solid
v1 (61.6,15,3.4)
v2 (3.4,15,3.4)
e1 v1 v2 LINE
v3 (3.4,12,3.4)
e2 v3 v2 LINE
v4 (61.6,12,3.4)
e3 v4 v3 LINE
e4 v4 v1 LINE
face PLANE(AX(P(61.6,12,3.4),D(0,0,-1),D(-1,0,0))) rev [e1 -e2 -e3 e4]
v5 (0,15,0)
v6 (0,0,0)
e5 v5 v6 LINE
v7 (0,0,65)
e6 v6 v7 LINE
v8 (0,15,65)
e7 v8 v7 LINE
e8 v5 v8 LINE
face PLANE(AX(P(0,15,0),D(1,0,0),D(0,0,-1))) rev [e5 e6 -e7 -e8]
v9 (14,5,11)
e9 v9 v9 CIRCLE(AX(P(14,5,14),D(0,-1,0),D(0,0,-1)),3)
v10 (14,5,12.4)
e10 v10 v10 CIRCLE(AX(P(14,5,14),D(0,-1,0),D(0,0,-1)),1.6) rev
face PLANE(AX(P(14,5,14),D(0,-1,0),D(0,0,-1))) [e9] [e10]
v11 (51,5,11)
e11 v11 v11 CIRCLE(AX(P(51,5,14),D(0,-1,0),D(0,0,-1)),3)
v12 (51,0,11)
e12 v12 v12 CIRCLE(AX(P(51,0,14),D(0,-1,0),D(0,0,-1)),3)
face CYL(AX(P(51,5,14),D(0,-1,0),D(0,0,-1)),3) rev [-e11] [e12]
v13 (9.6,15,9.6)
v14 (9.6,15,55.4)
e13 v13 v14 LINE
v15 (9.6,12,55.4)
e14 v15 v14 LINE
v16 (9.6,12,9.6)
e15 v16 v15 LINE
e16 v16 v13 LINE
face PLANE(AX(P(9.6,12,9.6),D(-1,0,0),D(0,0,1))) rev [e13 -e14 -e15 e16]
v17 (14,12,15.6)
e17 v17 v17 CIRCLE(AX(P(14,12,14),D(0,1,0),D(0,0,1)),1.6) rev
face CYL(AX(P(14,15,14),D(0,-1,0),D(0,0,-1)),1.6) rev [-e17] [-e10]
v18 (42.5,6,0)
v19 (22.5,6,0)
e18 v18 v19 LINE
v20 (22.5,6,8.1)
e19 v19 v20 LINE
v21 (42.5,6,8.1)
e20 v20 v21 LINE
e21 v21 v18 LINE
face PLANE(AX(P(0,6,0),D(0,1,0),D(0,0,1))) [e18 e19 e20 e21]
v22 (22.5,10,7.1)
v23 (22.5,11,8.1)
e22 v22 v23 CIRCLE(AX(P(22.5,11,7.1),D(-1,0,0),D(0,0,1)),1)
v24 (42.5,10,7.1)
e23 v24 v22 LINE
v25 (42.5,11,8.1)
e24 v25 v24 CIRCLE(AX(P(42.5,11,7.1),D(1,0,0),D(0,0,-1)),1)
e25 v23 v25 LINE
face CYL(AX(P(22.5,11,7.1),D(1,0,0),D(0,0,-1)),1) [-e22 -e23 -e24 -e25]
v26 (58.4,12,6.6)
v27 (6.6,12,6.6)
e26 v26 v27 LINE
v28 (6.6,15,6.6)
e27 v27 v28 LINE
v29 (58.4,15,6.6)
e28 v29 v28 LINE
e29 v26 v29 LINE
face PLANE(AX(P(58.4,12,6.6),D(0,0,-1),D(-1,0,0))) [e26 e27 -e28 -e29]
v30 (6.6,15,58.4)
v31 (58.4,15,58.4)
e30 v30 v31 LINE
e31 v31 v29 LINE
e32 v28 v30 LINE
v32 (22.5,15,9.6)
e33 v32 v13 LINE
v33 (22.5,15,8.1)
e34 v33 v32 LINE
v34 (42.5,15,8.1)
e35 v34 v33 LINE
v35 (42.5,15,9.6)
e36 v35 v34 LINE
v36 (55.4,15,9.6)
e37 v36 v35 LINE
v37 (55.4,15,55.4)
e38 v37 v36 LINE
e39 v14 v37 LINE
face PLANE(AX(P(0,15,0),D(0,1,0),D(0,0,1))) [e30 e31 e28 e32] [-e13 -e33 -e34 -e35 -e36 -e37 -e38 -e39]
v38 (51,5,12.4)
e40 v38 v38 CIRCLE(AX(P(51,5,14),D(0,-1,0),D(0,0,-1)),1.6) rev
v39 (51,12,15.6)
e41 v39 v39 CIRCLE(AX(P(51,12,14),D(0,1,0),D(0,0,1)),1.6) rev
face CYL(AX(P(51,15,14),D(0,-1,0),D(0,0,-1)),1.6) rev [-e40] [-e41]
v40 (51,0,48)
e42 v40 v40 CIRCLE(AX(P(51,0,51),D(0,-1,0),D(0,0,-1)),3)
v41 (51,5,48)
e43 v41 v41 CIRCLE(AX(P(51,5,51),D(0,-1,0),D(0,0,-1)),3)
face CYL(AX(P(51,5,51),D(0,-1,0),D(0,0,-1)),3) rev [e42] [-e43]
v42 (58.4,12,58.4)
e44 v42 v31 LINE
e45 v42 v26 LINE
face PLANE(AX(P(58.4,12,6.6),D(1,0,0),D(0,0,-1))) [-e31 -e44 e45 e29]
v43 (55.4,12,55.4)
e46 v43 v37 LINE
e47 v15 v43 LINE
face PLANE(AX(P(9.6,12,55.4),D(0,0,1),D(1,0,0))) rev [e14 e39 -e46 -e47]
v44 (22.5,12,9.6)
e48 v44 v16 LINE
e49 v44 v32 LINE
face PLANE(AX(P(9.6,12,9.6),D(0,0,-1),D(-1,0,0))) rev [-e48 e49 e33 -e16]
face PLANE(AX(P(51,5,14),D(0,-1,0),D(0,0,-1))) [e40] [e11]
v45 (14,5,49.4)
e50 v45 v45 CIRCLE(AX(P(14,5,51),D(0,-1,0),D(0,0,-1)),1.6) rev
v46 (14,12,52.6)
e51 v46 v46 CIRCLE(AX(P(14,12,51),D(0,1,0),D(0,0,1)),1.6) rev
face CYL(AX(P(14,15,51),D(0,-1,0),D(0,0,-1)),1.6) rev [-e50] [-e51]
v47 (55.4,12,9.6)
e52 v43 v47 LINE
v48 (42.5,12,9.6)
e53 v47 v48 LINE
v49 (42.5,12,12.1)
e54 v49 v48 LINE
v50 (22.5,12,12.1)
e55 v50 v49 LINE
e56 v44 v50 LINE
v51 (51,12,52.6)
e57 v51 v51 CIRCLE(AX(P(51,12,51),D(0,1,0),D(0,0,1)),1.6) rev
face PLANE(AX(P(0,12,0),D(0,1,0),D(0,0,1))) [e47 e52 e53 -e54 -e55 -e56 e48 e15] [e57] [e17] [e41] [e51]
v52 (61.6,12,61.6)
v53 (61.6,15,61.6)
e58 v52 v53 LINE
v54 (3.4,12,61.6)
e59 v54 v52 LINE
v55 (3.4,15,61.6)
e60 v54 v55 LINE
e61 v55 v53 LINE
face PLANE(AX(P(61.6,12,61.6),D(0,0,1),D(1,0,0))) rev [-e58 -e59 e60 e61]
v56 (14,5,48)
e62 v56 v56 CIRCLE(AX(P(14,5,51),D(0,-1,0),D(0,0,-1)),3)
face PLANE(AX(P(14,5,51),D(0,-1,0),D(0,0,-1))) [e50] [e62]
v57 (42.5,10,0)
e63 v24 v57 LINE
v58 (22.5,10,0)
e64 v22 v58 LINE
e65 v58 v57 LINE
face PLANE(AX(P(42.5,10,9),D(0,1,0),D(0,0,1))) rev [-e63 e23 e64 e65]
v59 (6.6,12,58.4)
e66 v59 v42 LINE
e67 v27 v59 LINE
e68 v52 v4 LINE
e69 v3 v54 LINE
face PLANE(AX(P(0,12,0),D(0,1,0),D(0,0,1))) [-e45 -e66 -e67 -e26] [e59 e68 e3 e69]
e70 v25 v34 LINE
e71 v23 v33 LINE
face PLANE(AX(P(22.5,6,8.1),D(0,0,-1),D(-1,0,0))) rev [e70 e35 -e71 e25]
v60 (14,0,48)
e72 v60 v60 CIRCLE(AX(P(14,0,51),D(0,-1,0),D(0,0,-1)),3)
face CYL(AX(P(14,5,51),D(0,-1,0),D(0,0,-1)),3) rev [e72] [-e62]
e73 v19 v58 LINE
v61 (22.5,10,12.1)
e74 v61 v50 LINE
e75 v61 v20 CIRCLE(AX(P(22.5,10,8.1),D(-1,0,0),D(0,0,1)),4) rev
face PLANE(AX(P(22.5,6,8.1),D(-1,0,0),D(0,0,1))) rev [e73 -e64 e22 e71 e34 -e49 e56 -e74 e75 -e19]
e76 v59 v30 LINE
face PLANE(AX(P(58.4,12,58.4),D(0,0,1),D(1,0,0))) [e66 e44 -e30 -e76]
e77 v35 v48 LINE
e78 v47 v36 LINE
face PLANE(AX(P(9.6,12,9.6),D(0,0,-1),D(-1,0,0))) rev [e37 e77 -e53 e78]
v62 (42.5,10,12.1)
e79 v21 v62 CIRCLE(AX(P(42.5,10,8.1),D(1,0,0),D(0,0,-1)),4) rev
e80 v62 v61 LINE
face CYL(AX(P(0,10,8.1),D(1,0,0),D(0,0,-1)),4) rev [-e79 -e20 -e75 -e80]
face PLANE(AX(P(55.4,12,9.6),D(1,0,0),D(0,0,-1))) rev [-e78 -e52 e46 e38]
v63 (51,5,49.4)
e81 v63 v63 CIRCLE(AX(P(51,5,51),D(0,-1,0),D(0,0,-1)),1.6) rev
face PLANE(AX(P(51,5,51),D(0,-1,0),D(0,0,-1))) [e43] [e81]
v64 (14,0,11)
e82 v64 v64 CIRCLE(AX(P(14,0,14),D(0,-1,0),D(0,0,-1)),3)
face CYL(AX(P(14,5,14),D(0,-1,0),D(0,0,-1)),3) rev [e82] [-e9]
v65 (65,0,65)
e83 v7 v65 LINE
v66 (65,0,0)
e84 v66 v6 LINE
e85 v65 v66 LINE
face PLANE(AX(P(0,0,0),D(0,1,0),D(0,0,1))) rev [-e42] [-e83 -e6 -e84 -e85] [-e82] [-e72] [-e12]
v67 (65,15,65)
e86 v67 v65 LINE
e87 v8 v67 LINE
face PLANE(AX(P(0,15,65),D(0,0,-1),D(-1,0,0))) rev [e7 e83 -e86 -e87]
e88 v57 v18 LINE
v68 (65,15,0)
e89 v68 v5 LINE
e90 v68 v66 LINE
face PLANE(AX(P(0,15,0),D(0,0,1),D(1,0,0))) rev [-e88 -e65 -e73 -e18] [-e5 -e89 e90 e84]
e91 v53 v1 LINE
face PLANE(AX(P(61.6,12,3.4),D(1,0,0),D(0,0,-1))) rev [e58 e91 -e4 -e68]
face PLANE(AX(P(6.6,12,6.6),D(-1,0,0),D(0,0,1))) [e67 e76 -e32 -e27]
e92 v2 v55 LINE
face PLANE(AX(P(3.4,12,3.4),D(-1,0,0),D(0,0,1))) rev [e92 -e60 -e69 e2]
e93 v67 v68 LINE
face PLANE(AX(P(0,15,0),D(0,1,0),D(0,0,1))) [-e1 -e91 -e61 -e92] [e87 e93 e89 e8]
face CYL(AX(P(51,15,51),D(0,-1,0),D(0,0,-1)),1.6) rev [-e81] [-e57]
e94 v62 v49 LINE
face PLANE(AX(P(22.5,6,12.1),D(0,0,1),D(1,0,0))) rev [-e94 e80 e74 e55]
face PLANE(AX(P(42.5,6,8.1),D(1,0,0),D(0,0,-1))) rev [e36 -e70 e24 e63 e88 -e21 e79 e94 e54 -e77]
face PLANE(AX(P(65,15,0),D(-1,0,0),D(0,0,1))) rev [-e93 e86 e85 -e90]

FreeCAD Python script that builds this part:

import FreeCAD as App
import Part
import Sketcher
from FreeCAD import Vector


def edges_at(feature, points):
    """Names of the edges that pass closest to the given points."""
    edges = feature.Shape.Edges
    near = lambda p: min(range(len(edges)), key=lambda i: edges[i].distToShape(Part.Vertex(*p))[0])
    return sorted({f"Edge{near(p) + 1}" for p in points})

doc = App.newDocument("Part")
body = doc.addObject("PartDesign::Body", "Body")

# Sketch on XZ plane
sketch1 = body.newObject("Sketcher::SketchObject", "Sketch")
sketch1.AttachmentSupport = (doc.getObject("XZ_Plane"), [""])
sketch1.MapMode = "FlatFace"
sketch1.addGeometry([
    Part.LineSegment(Vector(0, 0, 0), Vector(0, 65, 0)),
    Part.LineSegment(Vector(0, 65, 0), Vector(65, 65, 0)),
    Part.LineSegment(Vector(65, 65, 0), Vector(65, 0, 0)),
    Part.LineSegment(Vector(65, 0, 0), Vector(0, 0, 0)),
], False)
sketch1.addConstraint([
    Sketcher.Constraint("Coincident", 0, 2, 1, 1),
    Sketcher.Constraint("Coincident", 1, 2, 2, 1),
    Sketcher.Constraint("Coincident", 2, 2, 3, 1),
    Sketcher.Constraint("Coincident", 3, 2, 0, 1),
    Sketcher.Constraint("Vertical", 0),
    Sketcher.Constraint("Horizontal", 1),
    Sketcher.Constraint("Vertical", 2),
    Sketcher.Constraint("Horizontal", 3),
    Sketcher.Constraint("Coincident", 3, 2, -1, 1),
    Sketcher.Constraint("Equal", 3, 0),
    Sketcher.Constraint("DistanceX", 1, 1, 1, 2, 65.0),
])
pad1 = body.newObject("PartDesign::Pad", "Pad")
pad1.Profile = sketch1
pad1.Length = 15
pad1.Reversed = True

# Sketch on XZ plane
sketch2 = body.newObject("Sketcher::SketchObject", "Sketch001")
sketch2.AttachmentSupport = (doc.getObject("XZ_Plane"), [""])
sketch2.MapMode = "FlatFace"
sketch2.addGeometry([
    Part.Circle(Vector(14, 51, 0), Vector(0, 0, 1), 1.6),
    Part.Circle(Vector(51, 51, 0), Vector(0, 0, 1), 1.6),
    Part.Circle(Vector(14, 14, 0), Vector(0, 0, 1), 1.6),
    Part.Circle(Vector(51, 14, 0), Vector(0, 0, 1), 1.6),
], False)
sketch2.addConstraint([
    Sketcher.Constraint("Equal", 0, 1),
    Sketcher.Constraint("Equal", 1, 2),
    Sketcher.Constraint("Equal", 2, 3),
    Sketcher.Constraint("Horizontal", 0, 3, 1, 3),
    Sketcher.Constraint("Horizontal", 2, 3, 3, 3),
    Sketcher.Constraint("Vertical", 0, 3, 2, 3),
    Sketcher.Constraint("Vertical", 1, 3, 3, 3),
    Sketcher.Constraint("Diameter", 0, 3.2),
    Sketcher.Constraint("DistanceX", -1, 1, 0, 3, 14.0),
    Sketcher.Constraint("DistanceY", -1, 1, 0, 3, 51.0),
    Sketcher.Constraint("DistanceX", -1, 1, 1, 3, 51.0),
    Sketcher.Constraint("DistanceY", -1, 1, 2, 3, 14.0),
])
pocket1 = body.newObject("PartDesign::Pocket", "Pocket")
pocket1.Profile = sketch2
pocket1.Type = "ThroughAll"

# Sketch on XZ plane
sketch3 = body.newObject("Sketcher::SketchObject", "Sketch002")
sketch3.AttachmentSupport = (doc.getObject("XZ_Plane"), [""])
sketch3.MapMode = "FlatFace"
sketch3.AttachmentOffset = App.Placement(Vector(0, 0, -15), App.Rotation())
sketch3.addGeometry([
    Part.LineSegment(Vector(9.6, 9.6, 0), Vector(9.6, 55.4, 0)),
    Part.LineSegment(Vector(9.6, 55.4, 0), Vector(55.4, 55.4, 0)),
    Part.LineSegment(Vector(55.4, 55.4, 0), Vector(55.4, 9.6, 0)),
    Part.LineSegment(Vector(55.4, 9.6, 0), Vector(9.6, 9.6, 0)),
], False)
sketch3.addConstraint([
    Sketcher.Constraint("Coincident", 0, 2, 1, 1),
    Sketcher.Constraint("Coincident", 1, 2, 2, 1),
    Sketcher.Constraint("Coincident", 2, 2, 3, 1),
    Sketcher.Constraint("Coincident", 3, 2, 0, 1),
    Sketcher.Constraint("Vertical", 0),
    Sketcher.Constraint("Horizontal", 1),
    Sketcher.Constraint("Vertical", 2),
    Sketcher.Constraint("Horizontal", 3),
    Sketcher.Constraint("Equal", 3, 0),
    Sketcher.Constraint("DistanceX", 1, 1, 1, 2, 45.8),
    Sketcher.Constraint("DistanceX", -1, 1, 0, 2, 9.6),
    Sketcher.Constraint("DistanceY", -1, 1, 0, 2, 55.4),
])
pocket2 = body.newObject("PartDesign::Pocket", "Pocket001")
pocket2.Profile = sketch3
pocket2.Length = 3
pocket2.Reversed = True

# Sketch on XZ plane
sketch4 = body.newObject("Sketcher::SketchObject", "Sketch003")
sketch4.AttachmentSupport = (doc.getObject("XZ_Plane"), [""])
sketch4.MapMode = "FlatFace"
sketch4.AttachmentOffset = App.Placement(Vector(0, 0, -15), App.Rotation())
sketch4.addGeometry([
    Part.LineSegment(Vector(3.4, 3.4, 0), Vector(3.4, 61.6, 0)),  # 0
    Part.LineSegment(Vector(3.4, 61.6, 0), Vector(61.6, 61.6, 0)),  # 1
    Part.LineSegment(Vector(61.6, 61.6, 0), Vector(61.6, 3.4, 0)),  # 2
    Part.LineSegment(Vector(61.6, 3.4, 0), Vector(3.4, 3.4, 0)),  # 3
    Part.LineSegment(Vector(58.4, 58.4, 0), Vector(6.6, 58.4, 0)),  # 4
    Part.LineSegment(Vector(6.6, 58.4, 0), Vector(6.6, 6.6, 0)),  # 5
    Part.LineSegment(Vector(6.6, 6.6, 0), Vector(58.4, 6.6, 0)),  # 6
    Part.LineSegment(Vector(58.4, 6.6, 0), Vector(58.4, 58.4, 0)),  # 7
], False)
sketch4.addConstraint([
    Sketcher.Constraint("Coincident", 0, 2, 1, 1),
    Sketcher.Constraint("Coincident", 1, 2, 2, 1),
    Sketcher.Constraint("Coincident", 2, 2, 3, 1),
    Sketcher.Constraint("Coincident", 3, 2, 0, 1),
    Sketcher.Constraint("Coincident", 4, 2, 5, 1),
    Sketcher.Constraint("Coincident", 5, 2, 6, 1),
    Sketcher.Constraint("Coincident", 6, 2, 7, 1),
    Sketcher.Constraint("Coincident", 7, 2, 4, 1),
    Sketcher.Constraint("Vertical", 0),
    Sketcher.Constraint("Horizontal", 1),
    Sketcher.Constraint("Vertical", 2),
    Sketcher.Constraint("Horizontal", 3),
    Sketcher.Constraint("Horizontal", 4),
    Sketcher.Constraint("Vertical", 5),
    Sketcher.Constraint("Horizontal", 6),
    Sketcher.Constraint("Vertical", 7),
    Sketcher.Constraint("Equal", 3, 0),
    Sketcher.Constraint("Equal", 6, 5),
    Sketcher.Constraint("DistanceX", 1, 1, 1, 2, 58.2),
    Sketcher.Constraint("DistanceX", 4, 2, 4, 1, 51.8),
    Sketcher.Constraint("DistanceX", 4, 2, 1, 2, 55.0),
    Sketcher.Constraint("DistanceY", 3, 2, 4, 2, 55.0),
    Sketcher.Constraint("DistanceX", -1, 1, 0, 2, 3.4),
    Sketcher.Constraint("DistanceY", -1, 1, 0, 2, 61.6),
])
pocket3 = body.newObject("PartDesign::Pocket", "Pocket002")
pocket3.Profile = sketch4
pocket3.Length = 3
pocket3.Reversed = True

# Sketch on XZ plane
sketch5 = body.newObject("Sketcher::SketchObject", "Sketch004")
sketch5.AttachmentSupport = (doc.getObject("XZ_Plane"), [""])
sketch5.MapMode = "FlatFace"
sketch5.addGeometry([
    Part.Circle(Vector(14, 14, 0), Vector(0, 0, 1), 3),
    Part.Circle(Vector(14, 51, 0), Vector(0, 0, 1), 3),
    Part.Circle(Vector(51, 14, 0), Vector(0, 0, 1), 3),
    Part.Circle(Vector(51, 51, 0), Vector(0, 0, 1), 3),
], False)
sketch5.addConstraint([
    Sketcher.Constraint("Equal", 0, 1),
    Sketcher.Constraint("Equal", 1, 2),
    Sketcher.Constraint("Equal", 2, 3),
    Sketcher.Constraint("Horizontal", 0, 3, 2, 3),
    Sketcher.Constraint("Horizontal", 1, 3, 3, 3),
    Sketcher.Constraint("Vertical", 0, 3, 1, 3),
    Sketcher.Constraint("Vertical", 2, 3, 3, 3),
    Sketcher.Constraint("Diameter", 0, 6.0),
    Sketcher.Constraint("DistanceX", -1, 1, 0, 3, 14.0),
    Sketcher.Constraint("DistanceY", -1, 1, 0, 3, 14.0),
    Sketcher.Constraint("DistanceY", -1, 1, 1, 3, 51.0),
    Sketcher.Constraint("DistanceX", -1, 1, 2, 3, 51.0),
])
pocket4 = body.newObject("PartDesign::Pocket", "Pocket003")
pocket4.Profile = sketch5
pocket4.Length = 5

# Sketch on XZ plane
sketch6 = body.newObject("Sketcher::SketchObject", "Sketch005")
sketch6.AttachmentSupport = (doc.getObject("XZ_Plane"), [""])
sketch6.MapMode = "FlatFace"
sketch6.AttachmentOffset = App.Placement(Vector(0, 0, -15), App.Rotation())
sketch6.addGeometry([
    Part.LineSegment(Vector(22.5, 8.1, 0), Vector(22.5, 12.1, 0)),
    Part.LineSegment(Vector(22.5, 12.1, 0), Vector(42.5, 12.1, 0)),
    Part.LineSegment(Vector(42.5, 12.1, 0), Vector(42.5, 8.1, 0)),
    Part.LineSegment(Vector(42.5, 8.1, 0), Vector(22.5, 8.1, 0)),
], False)
sketch6.addConstraint([
    Sketcher.Constraint("Coincident", 0, 2, 1, 1),
    Sketcher.Constraint("Coincident", 1, 2, 2, 1),
    Sketcher.Constraint("Coincident", 2, 2, 3, 1),
    Sketcher.Constraint("Coincident", 3, 2, 0, 1),
    Sketcher.Constraint("Vertical", 0),
    Sketcher.Constraint("Horizontal", 1),
    Sketcher.Constraint("Vertical", 2),
    Sketcher.Constraint("Horizontal", 3),
    Sketcher.Constraint("DistanceX", 1, 1, 1, 2, 20.0),
    Sketcher.Constraint("DistanceY", 0, 1, 0, 2, 4.0),
    Sketcher.Constraint("DistanceX", -1, 1, 0, 2, 22.5),
    Sketcher.Constraint("DistanceY", -1, 1, 0, 2, 12.1),
])
pocket5 = body.newObject("PartDesign::Pocket", "Pocket004")
pocket5.Profile = sketch6
pocket5.Length = 9
pocket5.Reversed = True

# Sketch on XY plane
sketch7 = body.newObject("Sketcher::SketchObject", "Sketch006")
sketch7.AttachmentSupport = (doc.getObject("XY_Plane"), [""])
sketch7.MapMode = "FlatFace"
sketch7.addGeometry([
    Part.LineSegment(Vector(42.5, 10, 0), Vector(42.5, 6, 0)),
    Part.LineSegment(Vector(42.5, 6, 0), Vector(22.5, 6, 0)),
    Part.LineSegment(Vector(22.5, 6, 0), Vector(22.5, 10, 0)),
    Part.LineSegment(Vector(22.5, 10, 0), Vector(42.5, 10, 0)),
], False)
sketch7.addConstraint([
    Sketcher.Constraint("Coincident", 0, 2, 1, 1),
    Sketcher.Constraint("Coincident", 1, 2, 2, 1),
    Sketcher.Constraint("Coincident", 2, 2, 3, 1),
    Sketcher.Constraint("Coincident", 3, 2, 0, 1),
    Sketcher.Constraint("Vertical", 0),
    Sketcher.Constraint("Horizontal", 1),
    Sketcher.Constraint("Vertical", 2),
    Sketcher.Constraint("Horizontal", 3),
    Sketcher.Constraint("DistanceX", 1, 2, 1, 1, 20.0),
    Sketcher.Constraint("DistanceY", 0, 2, 0, 1, 4.0),
    Sketcher.Constraint("DistanceY", -1, 1, 0, 2, 6.0),
    Sketcher.Constraint("DistanceX", -1, 1, 0, 2, 42.5),
])
pocket6 = body.newObject("PartDesign::Pocket", "Pocket005")
pocket6.Profile = sketch7
pocket6.Length = 9
pocket6.Reversed = True
doc.recompute()

fillet = body.newObject("PartDesign::Fillet", "Fillet")
fillet.Base = (pocket6, edges_at(pocket6, [(32.5, 6, 12.1)]))
fillet.Radius = 4
doc.recompute()

fillet2 = body.newObject("PartDesign::Fillet", "Fillet001")
fillet2.Base = (fillet, edges_at(fillet, [(32.5, 10, 8.1)]))
fillet2.Radius = 1

doc.recompute()
